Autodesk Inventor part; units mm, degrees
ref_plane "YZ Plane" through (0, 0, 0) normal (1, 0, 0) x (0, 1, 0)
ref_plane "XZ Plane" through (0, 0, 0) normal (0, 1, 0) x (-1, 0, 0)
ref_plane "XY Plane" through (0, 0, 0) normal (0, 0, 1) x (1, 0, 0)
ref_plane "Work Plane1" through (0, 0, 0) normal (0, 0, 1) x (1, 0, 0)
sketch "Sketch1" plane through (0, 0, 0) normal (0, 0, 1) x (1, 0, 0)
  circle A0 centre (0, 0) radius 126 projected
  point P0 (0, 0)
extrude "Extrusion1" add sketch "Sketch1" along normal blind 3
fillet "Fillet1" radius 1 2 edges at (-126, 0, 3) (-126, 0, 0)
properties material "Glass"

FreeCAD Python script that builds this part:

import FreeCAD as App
import Part
import Sketcher


def edges_at(feature, points):
    """Names of the edges that pass closest to the given points."""
    edges = feature.Shape.Edges
    near = lambda p: min(range(len(edges)), key=lambda i: edges[i].distToShape(Part.Vertex(*p))[0])
    return sorted({f"Edge{near(p) + 1}" for p in points})

doc = App.newDocument("Part")
params = doc.addObject("Spreadsheet::Sheet", "Params")
for row, (alias, value) in enumerate([
    ("sketch1_diameter", "252 mm"),
    ("pad1_length", "3 mm"),
    ("fillet_radius", "1 mm"),
], start=1):
    params.set(f"A{row}", alias)
    params.set(f"B{row}", "=" + value)
    params.setAlias(f"B{row}", alias)

body = doc.addObject("PartDesign::Body", "Body")

# Sketch on XY plane
sketch1 = body.newObject("Sketcher::SketchObject", "Sketch")
sketch1.AttachmentSupport = (doc.getObject("XY_Plane"), [""])
sketch1.MapMode = "FlatFace"
sketch1.addGeometry(Part.Circle(App.Vector(0, 0, 0), App.Vector(0, 0, 1), 126), False)
sketch1.addConstraint([
    Sketcher.Constraint("Coincident", 0, 3, -1, 1),
    Sketcher.Constraint("Diameter", 0, 252.0),
])
sketch1.setExpression("Constraints[1]", "Params.sketch1_diameter")
pad1 = body.newObject("PartDesign::Pad", "Pad")
pad1.Profile = sketch1
pad1.setExpression("Length", "Params.pad1_length")
doc.recompute()

fillet = body.newObject("PartDesign::Fillet", "Fillet")
fillet.Base = (pad1, edges_at(pad1, [(-126, 0, 3), (-126, 0, 0)]))
fillet.setExpression("Radius", "Params.fillet_radius")

doc.recompute()
